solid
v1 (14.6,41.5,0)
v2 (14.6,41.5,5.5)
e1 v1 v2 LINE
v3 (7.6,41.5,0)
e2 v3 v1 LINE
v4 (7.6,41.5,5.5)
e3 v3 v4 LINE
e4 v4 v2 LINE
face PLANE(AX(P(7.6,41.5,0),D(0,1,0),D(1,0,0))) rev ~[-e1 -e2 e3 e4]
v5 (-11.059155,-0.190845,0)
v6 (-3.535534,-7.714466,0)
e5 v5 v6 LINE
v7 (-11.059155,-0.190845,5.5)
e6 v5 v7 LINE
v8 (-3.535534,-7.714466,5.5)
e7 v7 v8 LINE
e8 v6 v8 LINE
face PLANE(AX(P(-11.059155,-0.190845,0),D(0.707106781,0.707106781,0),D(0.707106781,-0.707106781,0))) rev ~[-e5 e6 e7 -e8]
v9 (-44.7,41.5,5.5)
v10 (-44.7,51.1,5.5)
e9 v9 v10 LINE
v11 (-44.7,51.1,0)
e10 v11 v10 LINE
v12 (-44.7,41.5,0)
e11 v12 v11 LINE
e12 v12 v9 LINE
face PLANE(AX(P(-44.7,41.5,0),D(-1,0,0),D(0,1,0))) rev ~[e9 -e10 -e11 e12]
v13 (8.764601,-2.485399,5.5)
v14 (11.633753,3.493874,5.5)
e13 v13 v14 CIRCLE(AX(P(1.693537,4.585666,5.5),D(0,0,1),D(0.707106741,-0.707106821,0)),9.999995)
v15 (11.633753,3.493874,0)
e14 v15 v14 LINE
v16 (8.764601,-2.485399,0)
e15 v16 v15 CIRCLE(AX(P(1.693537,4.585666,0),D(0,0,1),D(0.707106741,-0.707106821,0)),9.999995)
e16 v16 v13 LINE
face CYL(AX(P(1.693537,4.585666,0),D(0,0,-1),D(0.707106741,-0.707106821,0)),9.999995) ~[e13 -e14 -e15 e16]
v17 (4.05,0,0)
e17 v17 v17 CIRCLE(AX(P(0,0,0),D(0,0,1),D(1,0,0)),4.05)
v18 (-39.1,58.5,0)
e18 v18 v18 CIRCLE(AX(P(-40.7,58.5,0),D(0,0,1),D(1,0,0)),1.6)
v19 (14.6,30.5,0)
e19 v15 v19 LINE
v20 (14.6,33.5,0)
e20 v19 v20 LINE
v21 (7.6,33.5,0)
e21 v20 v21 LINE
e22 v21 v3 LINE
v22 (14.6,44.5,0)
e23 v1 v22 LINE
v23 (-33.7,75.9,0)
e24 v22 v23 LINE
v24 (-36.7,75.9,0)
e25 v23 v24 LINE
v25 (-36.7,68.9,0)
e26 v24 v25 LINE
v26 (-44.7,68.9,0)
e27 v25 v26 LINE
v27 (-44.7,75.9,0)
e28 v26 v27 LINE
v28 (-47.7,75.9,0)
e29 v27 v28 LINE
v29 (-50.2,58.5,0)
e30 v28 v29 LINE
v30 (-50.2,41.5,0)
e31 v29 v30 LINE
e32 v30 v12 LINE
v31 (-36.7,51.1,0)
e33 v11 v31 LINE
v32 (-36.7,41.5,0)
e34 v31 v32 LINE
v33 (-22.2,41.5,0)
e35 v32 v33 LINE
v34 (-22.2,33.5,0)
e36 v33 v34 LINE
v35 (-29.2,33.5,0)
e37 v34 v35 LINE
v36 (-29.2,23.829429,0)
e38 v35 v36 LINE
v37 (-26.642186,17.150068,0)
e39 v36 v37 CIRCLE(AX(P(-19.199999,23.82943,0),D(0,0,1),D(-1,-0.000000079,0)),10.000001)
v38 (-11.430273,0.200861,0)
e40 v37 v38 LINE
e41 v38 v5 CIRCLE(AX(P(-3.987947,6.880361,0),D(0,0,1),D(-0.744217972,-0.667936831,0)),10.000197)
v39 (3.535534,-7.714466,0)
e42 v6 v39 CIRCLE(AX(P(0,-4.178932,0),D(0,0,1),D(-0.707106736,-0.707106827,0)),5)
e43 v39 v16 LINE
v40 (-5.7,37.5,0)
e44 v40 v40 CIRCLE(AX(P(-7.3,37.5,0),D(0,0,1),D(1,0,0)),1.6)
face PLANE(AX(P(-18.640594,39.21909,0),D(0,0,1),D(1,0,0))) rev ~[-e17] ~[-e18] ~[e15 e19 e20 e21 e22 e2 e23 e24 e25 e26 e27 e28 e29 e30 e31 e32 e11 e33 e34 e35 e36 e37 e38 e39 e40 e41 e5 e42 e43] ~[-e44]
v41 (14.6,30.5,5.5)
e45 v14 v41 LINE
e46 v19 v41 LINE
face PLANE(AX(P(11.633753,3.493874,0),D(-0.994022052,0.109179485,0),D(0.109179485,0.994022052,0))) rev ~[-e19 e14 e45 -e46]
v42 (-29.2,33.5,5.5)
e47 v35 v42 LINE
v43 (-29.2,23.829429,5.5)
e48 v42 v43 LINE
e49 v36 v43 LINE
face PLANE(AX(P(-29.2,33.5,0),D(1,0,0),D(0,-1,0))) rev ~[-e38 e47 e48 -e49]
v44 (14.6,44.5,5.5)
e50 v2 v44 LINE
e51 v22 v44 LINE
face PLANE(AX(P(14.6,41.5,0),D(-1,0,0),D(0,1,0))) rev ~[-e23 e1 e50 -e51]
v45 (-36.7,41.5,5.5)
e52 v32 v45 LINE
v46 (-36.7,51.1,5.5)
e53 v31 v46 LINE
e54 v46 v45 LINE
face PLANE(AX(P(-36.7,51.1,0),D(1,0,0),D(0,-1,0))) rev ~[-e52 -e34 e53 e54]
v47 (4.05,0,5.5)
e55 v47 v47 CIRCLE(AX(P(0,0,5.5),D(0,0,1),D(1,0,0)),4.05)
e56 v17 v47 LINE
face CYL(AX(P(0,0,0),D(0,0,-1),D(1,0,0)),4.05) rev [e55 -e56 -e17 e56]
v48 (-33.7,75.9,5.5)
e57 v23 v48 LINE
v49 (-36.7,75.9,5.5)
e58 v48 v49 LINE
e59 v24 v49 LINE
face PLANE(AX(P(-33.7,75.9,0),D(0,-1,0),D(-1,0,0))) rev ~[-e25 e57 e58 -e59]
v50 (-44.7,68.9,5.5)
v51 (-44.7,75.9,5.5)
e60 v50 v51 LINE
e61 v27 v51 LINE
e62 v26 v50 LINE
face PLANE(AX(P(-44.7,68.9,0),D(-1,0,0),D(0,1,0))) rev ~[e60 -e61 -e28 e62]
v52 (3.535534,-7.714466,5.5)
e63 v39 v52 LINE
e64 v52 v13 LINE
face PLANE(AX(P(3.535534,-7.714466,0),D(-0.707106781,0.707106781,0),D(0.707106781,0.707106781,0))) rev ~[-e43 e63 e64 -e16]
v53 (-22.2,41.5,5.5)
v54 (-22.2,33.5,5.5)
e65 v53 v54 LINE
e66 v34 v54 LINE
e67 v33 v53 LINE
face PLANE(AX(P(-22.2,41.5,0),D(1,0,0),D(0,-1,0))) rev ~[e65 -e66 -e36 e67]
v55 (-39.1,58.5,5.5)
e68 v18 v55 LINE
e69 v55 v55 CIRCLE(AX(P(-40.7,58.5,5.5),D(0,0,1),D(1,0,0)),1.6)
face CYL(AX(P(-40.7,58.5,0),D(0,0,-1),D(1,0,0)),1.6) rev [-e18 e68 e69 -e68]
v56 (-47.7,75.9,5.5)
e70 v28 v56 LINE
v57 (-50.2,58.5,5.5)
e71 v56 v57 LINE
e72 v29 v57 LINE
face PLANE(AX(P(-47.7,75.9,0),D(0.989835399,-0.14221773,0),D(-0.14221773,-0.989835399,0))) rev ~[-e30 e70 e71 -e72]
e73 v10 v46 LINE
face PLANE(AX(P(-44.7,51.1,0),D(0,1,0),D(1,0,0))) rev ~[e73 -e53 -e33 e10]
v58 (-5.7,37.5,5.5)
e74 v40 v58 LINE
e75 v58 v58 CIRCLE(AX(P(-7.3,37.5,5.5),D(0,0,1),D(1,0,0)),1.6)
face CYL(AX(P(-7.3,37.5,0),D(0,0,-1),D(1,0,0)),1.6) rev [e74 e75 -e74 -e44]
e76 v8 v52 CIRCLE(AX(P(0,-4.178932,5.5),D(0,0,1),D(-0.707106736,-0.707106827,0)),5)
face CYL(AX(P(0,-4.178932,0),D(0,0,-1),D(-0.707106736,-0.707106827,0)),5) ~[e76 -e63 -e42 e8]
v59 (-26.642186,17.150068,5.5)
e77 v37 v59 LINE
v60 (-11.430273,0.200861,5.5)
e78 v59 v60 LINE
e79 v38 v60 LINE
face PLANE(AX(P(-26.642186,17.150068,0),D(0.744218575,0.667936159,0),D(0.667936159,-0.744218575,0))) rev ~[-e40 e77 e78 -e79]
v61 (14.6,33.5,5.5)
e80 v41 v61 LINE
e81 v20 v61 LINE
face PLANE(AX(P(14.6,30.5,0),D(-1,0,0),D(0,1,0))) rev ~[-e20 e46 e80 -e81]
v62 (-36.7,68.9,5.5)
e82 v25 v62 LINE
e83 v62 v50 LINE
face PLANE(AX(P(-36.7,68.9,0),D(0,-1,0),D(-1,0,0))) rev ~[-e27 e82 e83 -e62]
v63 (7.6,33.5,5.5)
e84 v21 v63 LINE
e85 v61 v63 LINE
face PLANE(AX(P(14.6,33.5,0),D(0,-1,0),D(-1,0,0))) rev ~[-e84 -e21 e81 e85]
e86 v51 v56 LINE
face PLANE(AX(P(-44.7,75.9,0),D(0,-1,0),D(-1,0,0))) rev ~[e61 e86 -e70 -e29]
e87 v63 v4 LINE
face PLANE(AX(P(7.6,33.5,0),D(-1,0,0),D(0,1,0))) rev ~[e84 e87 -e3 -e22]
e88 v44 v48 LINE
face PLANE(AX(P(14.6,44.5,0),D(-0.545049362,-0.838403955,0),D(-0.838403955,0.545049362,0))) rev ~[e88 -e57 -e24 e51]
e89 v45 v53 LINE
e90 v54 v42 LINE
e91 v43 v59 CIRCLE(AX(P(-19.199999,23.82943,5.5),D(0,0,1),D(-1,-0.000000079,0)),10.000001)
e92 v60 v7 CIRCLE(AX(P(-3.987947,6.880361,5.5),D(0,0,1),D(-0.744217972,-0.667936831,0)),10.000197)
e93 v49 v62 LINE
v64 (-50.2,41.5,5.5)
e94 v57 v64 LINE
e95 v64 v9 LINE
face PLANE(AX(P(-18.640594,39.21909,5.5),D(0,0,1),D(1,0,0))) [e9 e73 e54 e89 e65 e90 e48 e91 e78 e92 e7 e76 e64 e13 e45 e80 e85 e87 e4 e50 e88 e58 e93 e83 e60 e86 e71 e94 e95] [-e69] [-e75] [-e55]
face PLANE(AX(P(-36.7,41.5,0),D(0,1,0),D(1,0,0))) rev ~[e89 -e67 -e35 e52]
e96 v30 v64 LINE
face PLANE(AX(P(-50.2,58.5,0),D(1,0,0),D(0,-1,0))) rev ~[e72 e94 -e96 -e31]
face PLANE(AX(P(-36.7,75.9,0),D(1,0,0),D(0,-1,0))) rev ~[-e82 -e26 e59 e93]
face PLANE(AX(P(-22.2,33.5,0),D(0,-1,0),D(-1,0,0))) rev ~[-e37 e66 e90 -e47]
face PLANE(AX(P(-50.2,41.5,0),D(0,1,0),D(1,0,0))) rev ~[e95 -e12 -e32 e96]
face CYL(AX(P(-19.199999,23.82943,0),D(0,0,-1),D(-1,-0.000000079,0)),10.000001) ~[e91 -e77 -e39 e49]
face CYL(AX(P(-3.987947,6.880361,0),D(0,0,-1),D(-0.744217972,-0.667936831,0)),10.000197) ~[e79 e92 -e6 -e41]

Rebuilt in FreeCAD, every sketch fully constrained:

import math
import FreeCAD as App
import Part
import Sketcher
from FreeCAD import Vector
Q = App.Units.Quantity

doc = App.newDocument("Part")
body = doc.addObject("PartDesign::Body", "Body")

# Sketch on XY plane
sketch1 = body.newObject("Sketcher::SketchObject", "Sketch")
sketch1.AttachmentSupport = (doc.getObject("XY_Plane"), [""])
sketch1.MapMode = "FlatFace"
sketch1.addGeometry([
    Part.LineSegment(Vector(-22.2, 41.5, 0), Vector(-22.2, 33.5, 0)),  # 0
    Part.LineSegment(Vector(-22.2, 33.5, 0), Vector(-29.2, 33.5, 0)),  # 1
    Part.LineSegment(Vector(-29.2, 33.5, 0), Vector(-29.2, 23.8, 0)),  # 2
    Part.ArcOfCircle(Part.Circle(Vector(-19.2, 23.8, 0), Vector(0, 0, 1), 10), math.radians(-180), math.radians(-138)),  # 3
    Part.LineSegment(Vector(-26.6, 17.2, 0), Vector(-11.4, 0.2, 0)),  # 4
    Part.ArcOfCircle(Part.Circle(Vector(-4, 6.9, 0), Vector(0, 0, 1), 10), math.radians(-138.09), math.radians(-135)),  # 5
    Part.LineSegment(Vector(-11.1, -0.2, 0), Vector(-3.5, -7.7, 0)),  # 6
    Part.ArcOfCircle(Part.Circle(Vector(0, -4.2, 0), Vector(0, 0, 1), 5), math.radians(-135), math.radians(-45)),  # 7
    Part.LineSegment(Vector(3.5, -7.7, 0), Vector(8.8, -2.5, 0)),  # 8
    Part.ArcOfCircle(Part.Circle(Vector(1.7, 4.6, 0), Vector(0, 0, 1), 10), math.radians(-45), math.radians(-6)),  # 9
    Part.LineSegment(Vector(11.6, 3.5, 0), Vector(14.6, 30.5, 0)),  # 10
    Part.LineSegment(Vector(14.6, 30.5, 0), Vector(14.6, 33.5, 0)),  # 11
    Part.LineSegment(Vector(14.6, 33.5, 0), Vector(7.6, 33.5, 0)),  # 12
    Part.LineSegment(Vector(7.6, 33.5, 0), Vector(7.6, 41.5, 0)),  # 13
    Part.LineSegment(Vector(7.6, 41.5, 0), Vector(14.6, 41.5, 0)),  # 14
    Part.LineSegment(Vector(14.6, 41.5, 0), Vector(14.6, 44.5, 0)),  # 15
    Part.LineSegment(Vector(14.6, 44.5, 0), Vector(-33.7, 75.9, 0)),  # 16
    Part.LineSegment(Vector(-33.7, 75.9, 0), Vector(-36.7, 75.9, 0)),  # 17
    Part.LineSegment(Vector(-36.7, 75.9, 0), Vector(-36.7, 68.9, 0)),  # 18
    Part.LineSegment(Vector(-36.7, 68.9, 0), Vector(-44.7, 68.9, 0)),  # 19
    Part.LineSegment(Vector(-44.7, 68.9, 0), Vector(-44.7, 75.9, 0)),  # 20
    Part.LineSegment(Vector(-44.7, 75.9, 0), Vector(-47.7, 75.9, 0)),  # 21
    Part.LineSegment(Vector(-47.7, 75.9, 0), Vector(-50.2, 58.5, 0)),  # 22
    Part.LineSegment(Vector(-50.2, 58.5, 0), Vector(-50.2, 41.5, 0)),  # 23
    Part.LineSegment(Vector(-50.2, 41.5, 0), Vector(-44.7, 41.5, 0)),  # 24
    Part.LineSegment(Vector(-44.7, 41.5, 0), Vector(-44.7, 51.1, 0)),  # 25
    Part.LineSegment(Vector(-44.7, 51.1, 0), Vector(-36.7, 51.1, 0)),  # 26
    Part.LineSegment(Vector(-36.7, 51.1, 0), Vector(-36.7, 41.5, 0)),  # 27
    Part.LineSegment(Vector(-36.7, 41.5, 0), Vector(-22.2, 41.5, 0)),  # 28
    Part.Circle(Vector(0, 0, 0), Vector(0, 0, 1), 4),  # 29
    Part.Circle(Vector(-40.7, 58.5, 0), Vector(0, 0, 1), 1.6),  # 30
    Part.Circle(Vector(-7.3, 37.5, 0), Vector(0, 0, 1), 1.6),  # 31
], False)
sketch1.addConstraint([
    Sketcher.Constraint("Coincident", 0, 2, 1, 1),
    Sketcher.Constraint("Coincident", 1, 2, 2, 1),
    Sketcher.Constraint("Tangent", 2, 2, 3, 1),
    Sketcher.Constraint("Tangent", 3, 2, 4, 1),
    Sketcher.Constraint("Tangent", 4, 2, 5, 1),
    Sketcher.Constraint("Tangent", 5, 2, 6, 1),
    Sketcher.Constraint("Tangent", 6, 2, 7, 1),
    Sketcher.Constraint("Tangent", 7, 2, 8, 1),
    Sketcher.Constraint("Tangent", 8, 2, 9, 1),
    Sketcher.Constraint("Tangent", 9, 2, 10, 1),
    Sketcher.Constraint("Coincident", 10, 2, 11, 1),
    Sketcher.Constraint("Coincident", 11, 2, 12, 1),
    Sketcher.Constraint("Coincident", 12, 2, 13, 1),
    Sketcher.Constraint("Coincident", 13, 2, 14, 1),
    Sketcher.Constraint("Coincident", 14, 2, 15, 1),
    Sketcher.Constraint("Coincident", 15, 2, 16, 1),
    Sketcher.Constraint("Coincident", 16, 2, 17, 1),
    Sketcher.Constraint("Coincident", 17, 2, 18, 1),
    Sketcher.Constraint("Coincident", 18, 2, 19, 1),
    Sketcher.Constraint("Coincident", 19, 2, 20, 1),
    Sketcher.Constraint("Coincident", 20, 2, 21, 1),
    Sketcher.Constraint("Coincident", 21, 2, 22, 1),
    Sketcher.Constraint("Coincident", 22, 2, 23, 1),
    Sketcher.Constraint("Coincident", 23, 2, 24, 1),
    Sketcher.Constraint("Coincident", 24, 2, 25, 1),
    Sketcher.Constraint("Coincident", 25, 2, 26, 1),
    Sketcher.Constraint("Coincident", 26, 2, 27, 1),
    Sketcher.Constraint("Coincident", 27, 2, 28, 1),
    Sketcher.Constraint("Coincident", 28, 2, 0, 1),
    Sketcher.Constraint("Vertical", 0),
    Sketcher.Constraint("Horizontal", 1),
    Sketcher.Constraint("Vertical", 2),
    Sketcher.Constraint("Vertical", 11),
    Sketcher.Constraint("Horizontal", 12),
    Sketcher.Constraint("Vertical", 13),
    Sketcher.Constraint("Horizontal", 14),
    Sketcher.Constraint("Vertical", 15),
    Sketcher.Constraint("Horizontal", 17),
    Sketcher.Constraint("Vertical", 18),
    Sketcher.Constraint("Horizontal", 19),
    Sketcher.Constraint("Vertical", 20),
    Sketcher.Constraint("Horizontal", 21),
    Sketcher.Constraint("Vertical", 23),
    Sketcher.Constraint("Horizontal", 24),
    Sketcher.Constraint("Vertical", 25),
    Sketcher.Constraint("Horizontal", 26),
    Sketcher.Constraint("Vertical", 27),
    Sketcher.Constraint("Horizontal", 28),
    Sketcher.Constraint("Coincident", 29, 3, -1, 1),
    Sketcher.Constraint("Equal", 30, 31),
    Sketcher.Constraint("Symmetric", 6, 2, 7, 2, -2),
    Sketcher.Constraint("Perpendicular", 6, 8),
    Sketcher.Constraint("Horizontal", 1, 2, 11, 2),
    Sketcher.Constraint("Horizontal", 17, 2, 20, 2),
    Sketcher.Constraint("Horizontal", 30, 3, 22, 2),
    Sketcher.Constraint("Horizontal", 14, 2, 23, 2),
    Sketcher.Constraint("Horizontal", 24, 2, 27, 2),
    Sketcher.Constraint("Vertical", 11, 2, 14, 2),
    Sketcher.Constraint("Vertical", 20, 2, 24, 2),
    Sketcher.Constraint("Vertical", 18, 2, 26, 2),
    Sketcher.Constraint("Equal", 1, 12),
    Sketcher.Constraint("Equal", 17, 21),
    Sketcher.Constraint("Equal", 26, 0),
    Sketcher.Constraint("Equal", 21, 11),
    Sketcher.Constraint("Equal", 11, 15),
    Sketcher.Constraint("Equal", 14, 18),
    Sketcher.Constraint("Radius", 3, Q("10.000001 mm")),
    Sketcher.Constraint("Radius", 7, Q("5 mm")),
    Sketcher.Constraint("Diameter", 29, Q("8.1 mm")),
    Sketcher.Constraint("Diameter", 30, Q("3.2 mm")),
    Sketcher.Constraint("DistanceX", 1, 2, 1, 1, Q("7 mm")),
    Sketcher.Constraint("DistanceX", 17, 2, 17, 1, Q("3 mm")),
    Sketcher.Constraint("DistanceX", 19, 2, 19, 1, Q("8 mm")),
    Sketcher.Constraint("DistanceY", 23, 2, 23, 1, Q("17 mm")),
    Sketcher.Constraint("DistanceX", 24, 1, 24, 2, Q("5.5 mm")),
    Sketcher.Constraint("DistanceX", 28, 1, 28, 2, Q("14.5 mm")),
    Sketcher.Constraint("DistanceY", 25, 1, 25, 2, Q("9.6 mm")),
    Sketcher.Constraint("DistanceY", 31, 3, 30, 3, Q("21 mm")),
    Sketcher.Constraint("DistanceX", 30, 3, 16, 2, Q("7 mm")),
    Sketcher.Constraint("DistanceX", 3, 3, -1, 1, Q("19.199999 mm")),
    Sketcher.Constraint("DistanceY", -1, 1, 30, 3, Q("58.5 mm")),
    Sketcher.Constraint("DistanceX", 31, 3, -1, 1, Q("7.3 mm")),
    Sketcher.Constraint("DistanceX", -1, 1, 10, 2, Q("14.6 mm")),
    Sketcher.Constraint("DistanceY", -1, 1, 16, 2, Q("75.9 mm")),
    Sketcher.Constraint("Radius", 5, Q("10.000197 mm")),
    Sketcher.Constraint("Radius", 9, Q("9.999995 mm")),
    Sketcher.Constraint("Distance", 4, Q("22.774501 mm")),
    Sketcher.Constraint("DistanceY", 2, 2, 2, 1, Q("9.670571 mm")),
    Sketcher.Constraint("DistanceX", -1, 1, 8, 2, Q("8.764601 mm")),
    Sketcher.Constraint("DistanceY", 8, 2, -1, 1, Q("2.485399 mm")),
])
pad1 = body.newObject("PartDesign::Pad", "Pad")
pad1.Profile = sketch1
pad1.Length = 5.5

doc.recompute()
